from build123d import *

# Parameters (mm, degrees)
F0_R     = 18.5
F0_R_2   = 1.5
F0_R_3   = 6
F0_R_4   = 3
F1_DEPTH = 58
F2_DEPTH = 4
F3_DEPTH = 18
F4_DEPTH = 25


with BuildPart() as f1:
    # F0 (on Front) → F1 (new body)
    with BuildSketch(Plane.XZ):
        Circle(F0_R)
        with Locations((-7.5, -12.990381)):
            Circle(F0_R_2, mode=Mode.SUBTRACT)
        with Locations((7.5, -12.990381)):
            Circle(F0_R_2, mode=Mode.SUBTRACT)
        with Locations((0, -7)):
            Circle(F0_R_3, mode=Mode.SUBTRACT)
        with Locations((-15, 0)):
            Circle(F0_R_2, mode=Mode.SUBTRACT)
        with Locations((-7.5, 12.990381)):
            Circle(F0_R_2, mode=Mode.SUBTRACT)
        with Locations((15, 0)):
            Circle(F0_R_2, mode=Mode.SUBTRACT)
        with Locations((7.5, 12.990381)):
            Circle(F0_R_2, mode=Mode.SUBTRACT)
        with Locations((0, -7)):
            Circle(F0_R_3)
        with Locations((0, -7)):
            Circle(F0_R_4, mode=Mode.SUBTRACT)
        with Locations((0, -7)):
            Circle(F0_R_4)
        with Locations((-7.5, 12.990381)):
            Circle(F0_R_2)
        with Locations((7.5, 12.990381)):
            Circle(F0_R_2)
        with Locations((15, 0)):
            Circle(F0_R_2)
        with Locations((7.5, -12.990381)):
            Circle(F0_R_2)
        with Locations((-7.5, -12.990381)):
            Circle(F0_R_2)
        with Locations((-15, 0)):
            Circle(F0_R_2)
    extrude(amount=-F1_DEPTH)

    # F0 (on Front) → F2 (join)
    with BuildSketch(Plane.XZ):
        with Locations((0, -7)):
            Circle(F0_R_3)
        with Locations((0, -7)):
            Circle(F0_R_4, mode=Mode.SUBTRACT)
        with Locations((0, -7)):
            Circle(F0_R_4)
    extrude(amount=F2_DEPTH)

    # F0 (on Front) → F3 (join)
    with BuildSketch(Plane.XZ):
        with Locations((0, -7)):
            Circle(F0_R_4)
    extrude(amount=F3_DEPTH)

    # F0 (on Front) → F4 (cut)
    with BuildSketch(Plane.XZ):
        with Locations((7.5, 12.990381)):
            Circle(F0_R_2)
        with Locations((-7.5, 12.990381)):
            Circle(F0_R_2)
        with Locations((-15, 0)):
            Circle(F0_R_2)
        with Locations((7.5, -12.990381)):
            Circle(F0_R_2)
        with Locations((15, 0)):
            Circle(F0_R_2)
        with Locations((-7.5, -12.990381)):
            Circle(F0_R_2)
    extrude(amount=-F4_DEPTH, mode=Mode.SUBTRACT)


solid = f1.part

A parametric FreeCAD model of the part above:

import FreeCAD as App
import Part
import Sketcher

doc = App.newDocument("Part")
params = doc.addObject("Spreadsheet::Sheet", "Params")
for row, (alias, value) in enumerate([
    ("sketch1_diameter", "37 mm"),
    ("pad1_length", "58 mm"),
    ("sketch2_diameter", "12 mm"),
    ("pad2_length", "4 mm"),
    ("sketch3_diameter", "6 mm"),
    ("pad3_length", "18 mm"),
    ("sketch4_diameter", "3 mm"),
    ("pocket1_length", "25 mm"),
], start=1):
    params.set(f"A{row}", alias)
    params.set(f"B{row}", "=" + value)
    params.setAlias(f"B{row}", alias)

body = doc.addObject("PartDesign::Body", "Body")

# Sketch on XZ plane
sketch1 = body.newObject("Sketcher::SketchObject", "Sketch")
sketch1.AttachmentSupport = (doc.getObject("XZ_Plane"), [""])
sketch1.MapMode = "FlatFace"
sketch1.addGeometry(Part.Circle(App.Vector(0, 0, 0), App.Vector(0, 0, 1), 18), False)
sketch1.addConstraint([
    Sketcher.Constraint("Coincident", 0, 3, -1, 1),
    Sketcher.Constraint("Diameter", 0, 37.0),
])
sketch1.setExpression("Constraints[1]", "Params.sketch1_diameter")
pad1 = body.newObject("PartDesign::Pad", "Pad")
pad1.Profile = sketch1
pad1.setExpression("Length", "Params.pad1_length")
pad1.Reversed = True

# Sketch on XZ plane
sketch2 = body.newObject("Sketcher::SketchObject", "Sketch001")
sketch2.AttachmentSupport = (doc.getObject("XZ_Plane"), [""])
sketch2.MapMode = "FlatFace"
sketch2.addGeometry(Part.Circle(App.Vector(0, -7, 0), App.Vector(0, 0, 1), 6), False)
sketch2.addConstraint([
    Sketcher.Constraint("PointOnObject", 0, 3, -2),
    Sketcher.Constraint("Diameter", 0, 12.0),
    Sketcher.Constraint("DistanceY", 0, 3, -1, 1, 7.0),
])
sketch2.setExpression("Constraints[1]", "Params.sketch2_diameter")
pad2 = body.newObject("PartDesign::Pad", "Pad001")
pad2.Profile = sketch2
pad2.setExpression("Length", "Params.pad2_length")

# Sketch on XZ plane
sketch3 = body.newObject("Sketcher::SketchObject", "Sketch002")
sketch3.AttachmentSupport = (doc.getObject("XZ_Plane"), [""])
sketch3.MapMode = "FlatFace"
sketch3.addGeometry(Part.Circle(App.Vector(0, -7, 0), App.Vector(0, 0, 1), 3), False)
sketch3.addConstraint([
    Sketcher.Constraint("PointOnObject", 0, 3, -2),
    Sketcher.Constraint("Diameter", 0, 6.0),
    Sketcher.Constraint("DistanceY", 0, 3, -1, 1, 7.0),
])
sketch3.setExpression("Constraints[1]", "Params.sketch3_diameter")
pad3 = body.newObject("PartDesign::Pad", "Pad002")
pad3.Profile = sketch3
pad3.setExpression("Length", "Params.pad3_length")

# Sketch on XZ plane
sketch4 = body.newObject("Sketcher::SketchObject", "Sketch003")
sketch4.AttachmentSupport = (doc.getObject("XZ_Plane"), [""])
sketch4.MapMode = "FlatFace"
sketch4.addGeometry([
    Part.Circle(App.Vector(7.5, 13, 0), App.Vector(0, 0, 1), 1.5),  # 0
    Part.Circle(App.Vector(-7.5, 13, 0), App.Vector(0, 0, 1), 1.5),  # 1
    Part.Circle(App.Vector(-15, 0, 0), App.Vector(0, 0, 1), 1.5),  # 2
    Part.Circle(App.Vector(7.5, -13, 0), App.Vector(0, 0, 1), 1.5),  # 3
    Part.Circle(App.Vector(15, 0, 0), App.Vector(0, 0, 1), 1.5),  # 4
    Part.Circle(App.Vector(-7.5, -13, 0), App.Vector(0, 0, 1), 1.5),  # 5
], False)
sketch4.addConstraint([
    Sketcher.Constraint("Equal", 0, 1),
    Sketcher.Constraint("Equal", 1, 2),
    Sketcher.Constraint("Equal", 2, 3),
    Sketcher.Constraint("Equal", 3, 4),
    Sketcher.Constraint("Equal", 4, 5),
    Sketcher.Constraint("Symmetric", 1, 3, 3, 3, -1, 1),
    Sketcher.Constraint("Symmetric", 2, 3, 4, 3, -1, 1),
    Sketcher.Constraint("Symmetric", 0, 3, 5, 3, -1, 1),
    Sketcher.Constraint("Symmetric", 0, 3, 1, 3, -2),
    Sketcher.Constraint("PointOnObject", 2, 3, -1),
    Sketcher.Constraint("Diameter", 0, 3.0),
    Sketcher.Constraint("DistanceX", 2, 3, -1, 1, 15.0),
    Sketcher.Constraint("DistanceX", 1, 3, 0, 3, 15.0),
    Sketcher.Constraint("DistanceY", -1, 1, 0, 3, 12.990381),
])
sketch4.setExpression("Constraints[10]", "Params.sketch4_diameter")
pocket1 = body.newObject("PartDesign::Pocket", "Pocket")
pocket1.Profile = sketch4
pocket1.setExpression("Length", "Params.pocket1_length")

doc.recompute()
